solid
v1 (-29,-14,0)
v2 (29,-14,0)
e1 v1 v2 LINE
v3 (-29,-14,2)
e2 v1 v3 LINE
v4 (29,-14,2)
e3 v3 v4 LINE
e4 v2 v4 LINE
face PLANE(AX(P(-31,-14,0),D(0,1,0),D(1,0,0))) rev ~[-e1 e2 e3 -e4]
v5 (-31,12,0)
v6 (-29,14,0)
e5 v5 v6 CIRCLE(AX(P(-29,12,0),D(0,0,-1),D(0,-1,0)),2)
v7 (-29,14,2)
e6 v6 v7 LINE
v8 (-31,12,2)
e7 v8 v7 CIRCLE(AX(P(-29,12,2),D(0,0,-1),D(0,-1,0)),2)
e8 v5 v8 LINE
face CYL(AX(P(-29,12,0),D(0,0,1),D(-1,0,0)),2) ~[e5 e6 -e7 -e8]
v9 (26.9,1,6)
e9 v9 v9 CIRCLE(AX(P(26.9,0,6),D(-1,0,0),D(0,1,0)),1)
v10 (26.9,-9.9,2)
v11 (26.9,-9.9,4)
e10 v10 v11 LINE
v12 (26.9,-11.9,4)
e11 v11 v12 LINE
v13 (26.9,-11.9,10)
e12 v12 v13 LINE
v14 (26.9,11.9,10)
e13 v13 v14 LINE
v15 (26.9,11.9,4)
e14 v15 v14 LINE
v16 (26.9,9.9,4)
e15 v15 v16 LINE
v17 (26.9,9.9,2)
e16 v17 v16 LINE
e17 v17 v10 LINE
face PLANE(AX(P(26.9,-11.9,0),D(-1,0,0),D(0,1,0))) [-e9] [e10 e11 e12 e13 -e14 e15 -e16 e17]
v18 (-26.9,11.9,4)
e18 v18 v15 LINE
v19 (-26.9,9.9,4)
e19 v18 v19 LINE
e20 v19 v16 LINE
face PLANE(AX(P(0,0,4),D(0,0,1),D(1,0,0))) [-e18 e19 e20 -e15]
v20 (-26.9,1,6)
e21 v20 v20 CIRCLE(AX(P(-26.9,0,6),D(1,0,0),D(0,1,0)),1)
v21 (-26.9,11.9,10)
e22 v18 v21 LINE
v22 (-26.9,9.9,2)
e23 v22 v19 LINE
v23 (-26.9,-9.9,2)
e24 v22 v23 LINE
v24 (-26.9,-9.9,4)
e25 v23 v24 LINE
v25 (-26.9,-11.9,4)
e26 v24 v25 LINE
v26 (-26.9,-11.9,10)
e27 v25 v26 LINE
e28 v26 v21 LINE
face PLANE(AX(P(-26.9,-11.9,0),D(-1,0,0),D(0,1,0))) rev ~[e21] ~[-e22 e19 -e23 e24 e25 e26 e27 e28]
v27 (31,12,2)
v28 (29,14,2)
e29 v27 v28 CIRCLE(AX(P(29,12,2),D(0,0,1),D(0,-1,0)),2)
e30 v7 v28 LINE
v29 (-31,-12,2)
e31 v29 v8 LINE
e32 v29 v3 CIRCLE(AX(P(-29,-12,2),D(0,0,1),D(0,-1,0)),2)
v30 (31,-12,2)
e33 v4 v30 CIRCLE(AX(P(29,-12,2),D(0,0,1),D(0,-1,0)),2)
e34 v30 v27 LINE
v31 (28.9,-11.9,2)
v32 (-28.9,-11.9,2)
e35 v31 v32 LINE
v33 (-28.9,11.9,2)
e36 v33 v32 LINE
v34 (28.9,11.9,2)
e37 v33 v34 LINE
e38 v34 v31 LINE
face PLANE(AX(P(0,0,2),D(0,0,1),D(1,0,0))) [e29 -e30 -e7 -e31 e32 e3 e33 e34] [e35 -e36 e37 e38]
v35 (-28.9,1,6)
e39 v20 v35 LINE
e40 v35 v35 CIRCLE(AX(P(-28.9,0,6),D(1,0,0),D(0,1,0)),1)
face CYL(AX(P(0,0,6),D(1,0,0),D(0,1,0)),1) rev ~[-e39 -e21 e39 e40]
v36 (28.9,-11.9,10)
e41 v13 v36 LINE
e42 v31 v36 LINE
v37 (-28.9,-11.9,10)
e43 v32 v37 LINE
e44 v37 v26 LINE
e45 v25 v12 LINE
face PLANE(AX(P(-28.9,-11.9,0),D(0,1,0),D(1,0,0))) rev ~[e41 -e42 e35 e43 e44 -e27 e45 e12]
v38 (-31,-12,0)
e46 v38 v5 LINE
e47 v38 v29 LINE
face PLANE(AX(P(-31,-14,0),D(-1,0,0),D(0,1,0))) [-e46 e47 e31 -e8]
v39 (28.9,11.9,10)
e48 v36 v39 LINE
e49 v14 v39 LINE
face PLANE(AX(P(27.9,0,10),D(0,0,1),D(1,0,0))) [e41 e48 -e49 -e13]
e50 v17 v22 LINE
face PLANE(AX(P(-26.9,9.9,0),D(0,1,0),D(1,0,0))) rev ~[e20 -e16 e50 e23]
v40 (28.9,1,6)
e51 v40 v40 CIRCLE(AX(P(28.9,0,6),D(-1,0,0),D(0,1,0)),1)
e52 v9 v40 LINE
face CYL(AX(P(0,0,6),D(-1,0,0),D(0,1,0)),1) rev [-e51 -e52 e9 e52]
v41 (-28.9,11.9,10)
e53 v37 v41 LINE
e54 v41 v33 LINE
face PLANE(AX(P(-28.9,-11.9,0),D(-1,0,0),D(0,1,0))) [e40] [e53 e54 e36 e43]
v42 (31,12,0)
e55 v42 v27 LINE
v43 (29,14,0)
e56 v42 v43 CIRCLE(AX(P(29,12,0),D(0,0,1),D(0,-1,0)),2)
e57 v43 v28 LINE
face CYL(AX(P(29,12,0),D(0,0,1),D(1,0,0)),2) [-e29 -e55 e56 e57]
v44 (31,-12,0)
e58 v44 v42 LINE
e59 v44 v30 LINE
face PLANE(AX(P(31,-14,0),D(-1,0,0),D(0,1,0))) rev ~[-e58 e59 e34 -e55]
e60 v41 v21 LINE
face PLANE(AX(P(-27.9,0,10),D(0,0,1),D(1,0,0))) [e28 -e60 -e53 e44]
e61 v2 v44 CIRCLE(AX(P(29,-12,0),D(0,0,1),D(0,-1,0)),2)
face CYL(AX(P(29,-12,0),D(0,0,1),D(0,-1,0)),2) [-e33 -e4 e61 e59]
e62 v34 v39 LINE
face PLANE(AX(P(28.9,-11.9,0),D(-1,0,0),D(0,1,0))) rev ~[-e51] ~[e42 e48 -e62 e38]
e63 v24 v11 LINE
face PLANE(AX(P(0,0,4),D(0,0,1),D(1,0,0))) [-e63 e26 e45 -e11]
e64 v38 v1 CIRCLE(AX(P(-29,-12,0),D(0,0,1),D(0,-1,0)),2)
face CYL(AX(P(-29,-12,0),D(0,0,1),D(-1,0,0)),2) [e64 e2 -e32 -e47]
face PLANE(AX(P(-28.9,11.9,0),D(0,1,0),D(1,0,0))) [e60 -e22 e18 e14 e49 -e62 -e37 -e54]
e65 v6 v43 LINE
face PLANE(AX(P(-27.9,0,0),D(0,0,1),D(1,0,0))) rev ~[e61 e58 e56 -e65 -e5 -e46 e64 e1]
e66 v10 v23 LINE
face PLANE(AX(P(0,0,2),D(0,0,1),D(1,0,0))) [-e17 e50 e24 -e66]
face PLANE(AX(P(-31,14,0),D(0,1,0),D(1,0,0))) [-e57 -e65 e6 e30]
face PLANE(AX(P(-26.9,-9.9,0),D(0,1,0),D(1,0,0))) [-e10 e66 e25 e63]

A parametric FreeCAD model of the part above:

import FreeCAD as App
import Part
import Sketcher
from FreeCAD import Vector


def edges_at(feature, points):
    """Names of the edges that pass closest to the given points."""
    edges = feature.Shape.Edges
    near = lambda p: min(range(len(edges)), key=lambda i: edges[i].distToShape(Part.Vertex(*p))[0])
    return sorted({f"Edge{near(p) + 1}" for p in points})


def add_polygon(sketch, points):
    """Adds a closed chain of lines whose ends are joined by coincident constraints."""
    first, n = sketch.GeometryCount, len(points)
    for a, b in zip(points, points[1:] + points[:1]):
        sketch.addGeometry(Part.LineSegment(App.Vector(*a, 0), App.Vector(*b, 0)), False)
    for i in range(n):
        sketch.addConstraint(Sketcher.Constraint("Coincident", first + i, 2, first + (i + 1) % n, 1))

doc = App.newDocument("Part")
body = doc.addObject("PartDesign::Body", "Body")

# Sketch on XY plane
sketch1 = body.newObject("Sketcher::SketchObject", "Sketch")
sketch1.AttachmentSupport = (doc.getObject("XY_Plane"), [""])
sketch1.MapMode = "FlatFace"
add_polygon(sketch1, [(-31, 14), (-31, -14), (31, -14), (31, 14)])  # lines 0-3
sketch1.addConstraint([
    Sketcher.Constraint("Vertical", 0),
    Sketcher.Constraint("Horizontal", 1),
    Sketcher.Constraint("Vertical", 2),
    Sketcher.Constraint("Horizontal", 3),
    Sketcher.Constraint("Symmetric", 0, 2, 2, 2, -1, 1),
    Sketcher.Constraint("DistanceX", 1, 1, 1, 2, 62.0),
    Sketcher.Constraint("DistanceY", 0, 2, 0, 1, 28.0),
])
pad1 = body.newObject("PartDesign::Pad", "Pad")
pad1.Profile = sketch1
pad1.Length = 2

# Sketch on XY plane
sketch2 = body.newObject("Sketcher::SketchObject", "Sketch001")
sketch2.AttachmentSupport = (doc.getObject("XY_Plane"), [""])
sketch2.MapMode = "FlatFace"
add_polygon(sketch2, [(-29, 12), (-29, -12), (29, -12), (29, 12)])  # lines 0-3
add_polygon(sketch2, [(27, -10), (-27, -10), (-27, 10), (27, 10)])  # lines 4-7
sketch2.addConstraint([
    Sketcher.Constraint("Vertical", 0),
    Sketcher.Constraint("Horizontal", 1),
    Sketcher.Constraint("Vertical", 2),
    Sketcher.Constraint("Horizontal", 3),
    Sketcher.Constraint("Horizontal", 4),
    Sketcher.Constraint("Vertical", 5),
    Sketcher.Constraint("Horizontal", 6),
    Sketcher.Constraint("Vertical", 7),
    Sketcher.Constraint("Symmetric", 0, 2, 2, 2, -1, 1),
    Sketcher.Constraint("Symmetric", 4, 2, 6, 2, -1, 1),
    Sketcher.Constraint("DistanceX", 1, 1, 1, 2, 57.8),
    Sketcher.Constraint("DistanceX", 4, 2, 4, 1, 53.8),
    Sketcher.Constraint("DistanceY", 0, 2, 0, 1, 23.8),
    Sketcher.Constraint("DistanceY", 5, 1, 5, 2, 19.8),
])
pad2 = body.newObject("PartDesign::Pad", "Pad001")
pad2.Profile = sketch2
pad2.Length = 4

# Sketch on XY plane
sketch3 = body.newObject("Sketcher::SketchObject", "Sketch002")
sketch3.AttachmentSupport = (doc.getObject("XY_Plane"), [""])
sketch3.MapMode = "FlatFace"
add_polygon(sketch3, [(-28.9, 11.9), (-28.9, -11.9), (-26.9, -11.9), (-26.9, 11.9)])  # lines 0-3
add_polygon(sketch3, [(26.9, 11.9), (26.9, -11.9), (28.9, -11.9), (28.9, 11.9)])  # lines 4-7
sketch3.addConstraint([
    Sketcher.Constraint("Vertical", 0),
    Sketcher.Constraint("Horizontal", 1),
    Sketcher.Constraint("Vertical", 2),
    Sketcher.Constraint("Horizontal", 3),
    Sketcher.Constraint("Vertical", 4),
    Sketcher.Constraint("Horizontal", 5),
    Sketcher.Constraint("Vertical", 6),
    Sketcher.Constraint("Horizontal", 7),
    Sketcher.Constraint("Symmetric", 2, 2, 4, 2, -1, 1),
    Sketcher.Constraint("Symmetric", 0, 2, 6, 2, -1, 1),
    Sketcher.Constraint("Horizontal", 1, 2, 4, 2),
    Sketcher.Constraint("DistanceX", 1, 1, 1, 2, 2.0),
    Sketcher.Constraint("DistanceY", 0, 2, 0, 1, 23.8),
    Sketcher.Constraint("DistanceX", 0, 2, -1, 1, 28.9),
])
pad3 = body.newObject("PartDesign::Pad", "Pad002")
pad3.Profile = sketch3
pad3.Length = 10

# Sketch on YZ plane
sketch4 = body.newObject("Sketcher::SketchObject", "Sketch003")
sketch4.AttachmentSupport = (doc.getObject("YZ_Plane"), [""])
sketch4.MapMode = "FlatFace"
sketch4.addGeometry(Part.Circle(Vector(0, 6, 0), Vector(0, 0, 1), 1), False)
sketch4.addConstraint([
    Sketcher.Constraint("PointOnObject", 0, 3, -2),
    Sketcher.Constraint("Diameter", 0, 2.0),
    Sketcher.Constraint("DistanceY", -1, 1, 0, 3, 6.0),
])
pocket1 = body.newObject("PartDesign::Pocket", "Pocket")
pocket1.Profile = sketch4
pocket1.Type = "ThroughAll"
pocket1.Midplane = True
doc.recompute()

fillet = body.newObject("PartDesign::Fillet", "Fillet")
fillet.Base = (pocket1, edges_at(pocket1, [
    (31, 14, 1),
    (31, -14, 1),
    (-31, 14, 1),
    (-31, -14, 1),
]))
fillet.Radius = 2

doc.recompute()
